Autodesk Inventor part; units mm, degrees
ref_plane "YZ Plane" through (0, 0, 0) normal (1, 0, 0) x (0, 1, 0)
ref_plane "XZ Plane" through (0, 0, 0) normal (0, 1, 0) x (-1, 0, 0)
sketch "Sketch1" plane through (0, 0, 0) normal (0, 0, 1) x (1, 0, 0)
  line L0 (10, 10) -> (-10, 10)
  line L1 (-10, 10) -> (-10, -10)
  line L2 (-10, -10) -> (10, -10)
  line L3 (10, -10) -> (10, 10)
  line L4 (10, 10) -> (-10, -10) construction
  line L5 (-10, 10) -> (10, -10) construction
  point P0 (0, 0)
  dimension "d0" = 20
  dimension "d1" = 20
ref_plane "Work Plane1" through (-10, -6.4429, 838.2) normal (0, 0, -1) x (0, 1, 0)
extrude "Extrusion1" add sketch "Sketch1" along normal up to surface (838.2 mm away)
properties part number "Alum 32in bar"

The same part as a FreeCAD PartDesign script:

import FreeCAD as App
import Part
import Sketcher

V = App.Vector
Q = App.Units.Quantity

doc = App.newDocument("Part")
params = doc.addObject("Spreadsheet::Sheet", "Params")
for row, (alias, value) in enumerate([
    ("pad1_length", "33 in"),
], start=1):
    params.set(f"A{row}", alias)
    params.set(f"B{row}", "=" + value)
    params.setAlias(f"B{row}", alias)

body = doc.addObject("PartDesign::Body", "Body")

# Sketch on XY plane
sketch1 = body.newObject("Sketcher::SketchObject", "Sketch")
sketch1.AttachmentSupport = (doc.getObject("XY_Plane"), [""])
sketch1.MapMode = "FlatFace"
sketch1.addGeometry(Part.LineSegment(V(10, -10, 0), V(10, 10, 0)), False)
sketch1.addGeometry(Part.LineSegment(V(10, 10, 0), V(-10, 10, 0)), False)
sketch1.addGeometry(Part.LineSegment(V(-10, 10, 0), V(-10, -10, 0)), False)
sketch1.addGeometry(Part.LineSegment(V(-10, -10, 0), V(10, -10, 0)), False)
sketch1.addConstraint(Sketcher.Constraint("Coincident", 0, 2, 1, 1))
sketch1.addConstraint(Sketcher.Constraint("Coincident", 1, 2, 2, 1))
sketch1.addConstraint(Sketcher.Constraint("Coincident", 2, 2, 3, 1))
sketch1.addConstraint(Sketcher.Constraint("Coincident", 3, 2, 0, 1))
sketch1.addConstraint(Sketcher.Constraint("Vertical", 0))
sketch1.addConstraint(Sketcher.Constraint("Horizontal", 1))
sketch1.addConstraint(Sketcher.Constraint("Vertical", 2))
sketch1.addConstraint(Sketcher.Constraint("Horizontal", 3))
sketch1.addConstraint(Sketcher.Constraint("Symmetric", 0, 2, 2, 2, -1, 1))
sketch1.addConstraint(Sketcher.Constraint("Equal", 3, 0))
sketch1.addConstraint(Sketcher.Constraint("DistanceX", 1, 2, 1, 1, Q("0.7874 in")))
pad1 = body.newObject("PartDesign::Pad", "Pad")
pad1.Profile = sketch1
pad1.setExpression("Length", "Params.pad1_length")

doc.recompute()
